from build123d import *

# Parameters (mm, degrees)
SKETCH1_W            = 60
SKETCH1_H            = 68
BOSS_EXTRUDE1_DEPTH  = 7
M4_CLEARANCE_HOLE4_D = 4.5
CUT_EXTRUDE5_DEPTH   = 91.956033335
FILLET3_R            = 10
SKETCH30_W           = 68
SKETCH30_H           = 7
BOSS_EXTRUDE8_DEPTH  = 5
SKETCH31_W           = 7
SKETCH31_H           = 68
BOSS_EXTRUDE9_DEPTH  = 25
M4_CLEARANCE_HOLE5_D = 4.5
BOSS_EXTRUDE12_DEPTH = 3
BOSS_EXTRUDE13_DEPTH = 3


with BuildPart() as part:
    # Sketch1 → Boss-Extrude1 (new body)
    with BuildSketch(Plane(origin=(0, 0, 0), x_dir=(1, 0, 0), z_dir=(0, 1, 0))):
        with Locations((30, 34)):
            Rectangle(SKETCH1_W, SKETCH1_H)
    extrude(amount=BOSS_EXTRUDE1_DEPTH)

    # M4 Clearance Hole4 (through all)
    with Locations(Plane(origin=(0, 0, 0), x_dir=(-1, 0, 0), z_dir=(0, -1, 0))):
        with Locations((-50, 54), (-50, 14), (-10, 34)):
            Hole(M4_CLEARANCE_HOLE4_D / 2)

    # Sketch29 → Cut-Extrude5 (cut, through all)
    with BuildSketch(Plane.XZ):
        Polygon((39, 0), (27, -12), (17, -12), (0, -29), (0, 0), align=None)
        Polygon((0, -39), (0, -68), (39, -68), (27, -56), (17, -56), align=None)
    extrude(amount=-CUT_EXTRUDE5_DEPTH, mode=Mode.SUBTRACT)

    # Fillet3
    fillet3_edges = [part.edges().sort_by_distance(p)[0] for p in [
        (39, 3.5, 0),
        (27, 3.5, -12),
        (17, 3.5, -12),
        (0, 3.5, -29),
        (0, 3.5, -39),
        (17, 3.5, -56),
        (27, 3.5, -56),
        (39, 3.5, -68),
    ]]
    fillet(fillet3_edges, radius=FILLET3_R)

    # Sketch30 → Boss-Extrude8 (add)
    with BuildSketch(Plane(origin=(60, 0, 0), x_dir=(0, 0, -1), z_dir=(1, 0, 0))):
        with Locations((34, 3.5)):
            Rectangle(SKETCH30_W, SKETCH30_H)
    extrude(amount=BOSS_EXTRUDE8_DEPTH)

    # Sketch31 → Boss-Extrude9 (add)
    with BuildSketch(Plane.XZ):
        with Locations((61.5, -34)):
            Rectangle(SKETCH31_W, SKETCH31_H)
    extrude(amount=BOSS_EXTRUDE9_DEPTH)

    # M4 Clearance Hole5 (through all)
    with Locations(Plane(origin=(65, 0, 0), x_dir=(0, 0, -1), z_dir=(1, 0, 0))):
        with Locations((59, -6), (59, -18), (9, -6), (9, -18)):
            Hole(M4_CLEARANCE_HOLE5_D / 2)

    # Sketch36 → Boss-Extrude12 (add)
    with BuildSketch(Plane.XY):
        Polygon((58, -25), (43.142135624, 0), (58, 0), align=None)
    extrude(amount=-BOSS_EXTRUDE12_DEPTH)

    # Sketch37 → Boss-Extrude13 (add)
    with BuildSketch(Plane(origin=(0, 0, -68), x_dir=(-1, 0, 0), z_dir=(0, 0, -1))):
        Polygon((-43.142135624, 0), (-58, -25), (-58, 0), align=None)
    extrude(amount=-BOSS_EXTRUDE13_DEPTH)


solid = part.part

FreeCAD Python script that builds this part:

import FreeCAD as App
import Part
import Sketcher
from FreeCAD import Vector


def edges_at(feature, points):
    """Names of the edges that pass closest to the given points."""
    edges = feature.Shape.Edges
    near = lambda p: min(range(len(edges)), key=lambda i: edges[i].distToShape(Part.Vertex(*p))[0])
    return sorted({f"Edge{near(p) + 1}" for p in points})


def add_polygon(sketch, points):
    """Adds a closed chain of lines whose ends are joined by coincident constraints."""
    first, n = sketch.GeometryCount, len(points)
    for a, b in zip(points, points[1:] + points[:1]):
        sketch.addGeometry(Part.LineSegment(App.Vector(*a, 0), App.Vector(*b, 0)), False)
    for i in range(n):
        sketch.addConstraint(Sketcher.Constraint("Coincident", first + i, 2, first + (i + 1) % n, 1))

doc = App.newDocument("Part")
body = doc.addObject("PartDesign::Body", "Body")

sketch1 = doc.addObject("Sketcher::SketchObject", "Sketch")
body.addObject(sketch1)
sketch1.AttachmentSupport = (doc.XZ_Plane, [""])
sketch1.MapMode = "FlatFace"
add_polygon(sketch1, [(0, -68), (0, 0), (60, 0), (60, -68)])
sketch1.addConstraint([
    Sketcher.Constraint("Vertical", 0),
    Sketcher.Constraint("Horizontal", 1),
    Sketcher.Constraint("Vertical", 2),
    Sketcher.Constraint("Horizontal", 3),
    Sketcher.Constraint("Coincident", 0, 2, -1, 1),
    Sketcher.Constraint("DistanceX", 1, 1, 1, 2, 60.0),
    Sketcher.Constraint("DistanceY", 0, 1, 0, 2, 68.0),
])
pad1 = doc.addObject("PartDesign::Pad", "Pad")
body.addObject(pad1)
pad1.Profile = sketch1
pad1.Length = 7
pad1.Reversed = True

sketch2 = doc.addObject("Sketcher::SketchObject", "Sketch001")
body.addObject(sketch2)
sketch2.AttachmentSupport = (doc.XZ_Plane, [""])
sketch2.MapMode = "FlatFace"
sketch2.addGeometry([
    Part.Circle(Vector(50, -54, 0), Vector(0, 0, 1), 2.2),
    Part.Circle(Vector(50, -14, 0), Vector(0, 0, 1), 2.2),
    Part.Circle(Vector(10, -34, 0), Vector(0, 0, 1), 2.2),
], False)
sketch2.addConstraint([
    Sketcher.Constraint("Equal", 0, 1),
    Sketcher.Constraint("Equal", 1, 2),
    Sketcher.Constraint("Vertical", 0, 3, 1, 3),
    Sketcher.Constraint("Diameter", 0, 4.5),
    Sketcher.Constraint("DistanceX", -1, 1, 0, 3, 50.0),
    Sketcher.Constraint("DistanceY", 0, 3, -1, 1, 54.0),
    Sketcher.Constraint("DistanceY", 1, 3, -1, 1, 14.0),
    Sketcher.Constraint("DistanceX", -1, 1, 2, 3, 10.0),
    Sketcher.Constraint("DistanceY", 2, 3, -1, 1, 34.0),
])
doc.recompute()
hole = doc.addObject("PartDesign::Hole", "Hole")
body.addObject(hole)
hole.Profile = sketch2
hole.ThreadType = "None"
hole.Diameter = 4.5
hole.DepthType = "ThroughAll"

sketch3 = doc.addObject("Sketcher::SketchObject", "Sketch002")
body.addObject(sketch3)
sketch3.AttachmentSupport = (doc.XZ_Plane, [""])
sketch3.MapMode = "FlatFace"
add_polygon(sketch3, [(27, -12), (39, 0), (0, 0), (0, -29), (17, -12)])
add_polygon(sketch3, [(0, -39), (0, -68), (39, -68), (27, -56), (17, -56)])
sketch3.addConstraint([
    Sketcher.Constraint("Horizontal", 1),
    Sketcher.Constraint("Vertical", 2),
    Sketcher.Constraint("Horizontal", 4),
    Sketcher.Constraint("Vertical", 5),
    Sketcher.Constraint("Horizontal", 6),
    Sketcher.Constraint("Horizontal", 8),
    Sketcher.Constraint("Coincident", 1, 2, -1, 1),
    Sketcher.Constraint("PointOnObject", 5, 2, -2),
    Sketcher.Constraint("Parallel", 0, 3),
    Sketcher.Constraint("Perpendicular", 3, 7),
    Sketcher.Constraint("Parallel", 7, 9),
    Sketcher.Constraint("Vertical", 0, 2, 6, 2),
    Sketcher.Constraint("Vertical", 4, 2, 7, 2),
    Sketcher.Constraint("Vertical", 3, 2, 8, 2),
    Sketcher.Constraint("Equal", 2, 5),
    Sketcher.Constraint("DistanceX", 1, 2, 1, 1, 39.0),
    Sketcher.Constraint("DistanceX", 4, 1, 4, 2, 10.0),
    Sketcher.Constraint("DistanceX", -1, 1, 3, 2, 17.0),
    Sketcher.Constraint("DistanceY", 5, 2, -1, 1, 68.0),
])
pocket1 = doc.addObject("PartDesign::Pocket", "Pocket")
body.addObject(pocket1)
pocket1.Profile = sketch3
pocket1.Type = "ThroughAll"
doc.recompute()

fillet = doc.addObject("PartDesign::Fillet", "Fillet")
body.addObject(fillet)
fillet.Base = (pocket1, edges_at(pocket1, [
    (39, 3.5, 0),
    (27, 3.5, -12),
    (17, 3.5, -12),
    (0, 3.5, -29),
    (0, 3.5, -39),
    (17, 3.5, -56),
    (27, 3.5, -56),
    (39, 3.5, -68),
]))
fillet.Radius = 10

sketch4 = doc.addObject("Sketcher::SketchObject", "Sketch003")
body.addObject(sketch4)
sketch4.AttachmentSupport = (doc.YZ_Plane, [""])
sketch4.MapMode = "FlatFace"
sketch4.AttachmentOffset = App.Placement(Vector(0, 0, 60), App.Rotation())
add_polygon(sketch4, [(7, 0), (0, 0), (0, -68), (7, -68)])
sketch4.addConstraint([
    Sketcher.Constraint("Horizontal", 0),
    Sketcher.Constraint("Vertical", 1),
    Sketcher.Constraint("Horizontal", 2),
    Sketcher.Constraint("Vertical", 3),
    Sketcher.Constraint("Coincident", 0, 2, -1, 1),
    Sketcher.Constraint("DistanceX", 0, 2, 0, 1, 7.0),
    Sketcher.Constraint("DistanceY", 1, 2, 1, 1, 68.0),
])
pad2 = doc.addObject("PartDesign::Pad", "Pad001")
body.addObject(pad2)
pad2.Profile = sketch4
pad2.Length = 5

sketch5 = doc.addObject("Sketcher::SketchObject", "Sketch004")
body.addObject(sketch5)
sketch5.AttachmentSupport = (doc.XZ_Plane, [""])
sketch5.MapMode = "FlatFace"
add_polygon(sketch5, [(58, 0), (58, -68), (65, -68), (65, 0)])
sketch5.addConstraint([
    Sketcher.Constraint("Vertical", 0),
    Sketcher.Constraint("Horizontal", 1),
    Sketcher.Constraint("Vertical", 2),
    Sketcher.Constraint("Horizontal", 3),
    Sketcher.Constraint("PointOnObject", 2, 2, -1),
    Sketcher.Constraint("DistanceX", 1, 1, 1, 2, 7.0),
    Sketcher.Constraint("DistanceY", 0, 2, 0, 1, 68.0),
    Sketcher.Constraint("DistanceX", -1, 1, 0, 2, 58.0),
])
pad3 = doc.addObject("PartDesign::Pad", "Pad002")
body.addObject(pad3)
pad3.Profile = sketch5
pad3.Length = 25

sketch6 = doc.addObject("Sketcher::SketchObject", "Sketch005")
body.addObject(sketch6)
sketch6.AttachmentSupport = (doc.YZ_Plane, [""])
sketch6.MapMode = "FlatFace"
sketch6.AttachmentOffset = App.Placement(Vector(0, 0, 65), App.Rotation())
sketch6.addGeometry([
    Part.Circle(Vector(-6, -59, 0), Vector(0, 0, 1), 2.2),
    Part.Circle(Vector(-18, -59, 0), Vector(0, 0, 1), 2.2),
    Part.Circle(Vector(-6, -9, 0), Vector(0, 0, 1), 2.2),
    Part.Circle(Vector(-18, -9, 0), Vector(0, 0, 1), 2.2),
], False)
sketch6.addConstraint([
    Sketcher.Constraint("Equal", 0, 1),
    Sketcher.Constraint("Equal", 1, 2),
    Sketcher.Constraint("Equal", 2, 3),
    Sketcher.Constraint("Horizontal", 0, 3, 1, 3),
    Sketcher.Constraint("Horizontal", 2, 3, 3, 3),
    Sketcher.Constraint("Vertical", 0, 3, 2, 3),
    Sketcher.Constraint("Vertical", 1, 3, 3, 3),
    Sketcher.Constraint("Diameter", 0, 4.5),
    Sketcher.Constraint("DistanceX", 0, 3, -1, 1, 6.0),
    Sketcher.Constraint("DistanceY", 0, 3, -1, 1, 59.0),
    Sketcher.Constraint("DistanceX", 1, 3, -1, 1, 18.0),
    Sketcher.Constraint("DistanceY", 2, 3, -1, 1, 9.0),
])
doc.recompute()
hole2 = doc.addObject("PartDesign::Hole", "Hole001")
body.addObject(hole2)
hole2.Profile = sketch6
hole2.ThreadType = "None"
hole2.Diameter = 4.5
hole2.DepthType = "ThroughAll"

sketch7 = doc.addObject("Sketcher::SketchObject", "Sketch006")
body.addObject(sketch7)
sketch7.AttachmentSupport = (doc.XY_Plane, [""])
sketch7.MapMode = "FlatFace"
add_polygon(sketch7, [(43, 0), (58, -25), (58, 0)])
sketch7.addConstraint([
    Sketcher.Constraint("Vertical", 1),
    Sketcher.Constraint("Horizontal", 2),
    Sketcher.Constraint("PointOnObject", 1, 2, -1),
    Sketcher.Constraint("DistanceY", 1, 1, 1, 2, 25.0),
    Sketcher.Constraint("DistanceX", -1, 1, 0, 2, 58.0),
    Sketcher.Constraint("DistanceX", 2, 2, 2, 1, 14.857864),
])
pad4 = doc.addObject("PartDesign::Pad", "Pad003")
body.addObject(pad4)
pad4.Profile = sketch7
pad4.Length = 3
pad4.Reversed = True

sketch8 = doc.addObject("Sketcher::SketchObject", "Sketch007")
body.addObject(sketch8)
sketch8.AttachmentSupport = (doc.XY_Plane, [""])
sketch8.MapMode = "FlatFace"
sketch8.AttachmentOffset = App.Placement(Vector(0, 0, -68), App.Rotation())
add_polygon(sketch8, [(58, -25), (43, 0), (58, 0)])
sketch8.addConstraint([
    Sketcher.Constraint("Horizontal", 1),
    Sketcher.Constraint("Vertical", 2),
    Sketcher.Constraint("PointOnObject", 0, 2, -1),
    Sketcher.Constraint("DistanceY", 2, 2, 2, 1, 25.0),
    Sketcher.Constraint("DistanceX", -1, 1, 1, 2, 58.0),
    Sketcher.Constraint("DistanceX", 1, 1, 1, 2, 14.857864),
])
pad5 = doc.addObject("PartDesign::Pad", "Pad004")
body.addObject(pad5)
pad5.Profile = sketch8
pad5.Length = 3

doc.recompute()
